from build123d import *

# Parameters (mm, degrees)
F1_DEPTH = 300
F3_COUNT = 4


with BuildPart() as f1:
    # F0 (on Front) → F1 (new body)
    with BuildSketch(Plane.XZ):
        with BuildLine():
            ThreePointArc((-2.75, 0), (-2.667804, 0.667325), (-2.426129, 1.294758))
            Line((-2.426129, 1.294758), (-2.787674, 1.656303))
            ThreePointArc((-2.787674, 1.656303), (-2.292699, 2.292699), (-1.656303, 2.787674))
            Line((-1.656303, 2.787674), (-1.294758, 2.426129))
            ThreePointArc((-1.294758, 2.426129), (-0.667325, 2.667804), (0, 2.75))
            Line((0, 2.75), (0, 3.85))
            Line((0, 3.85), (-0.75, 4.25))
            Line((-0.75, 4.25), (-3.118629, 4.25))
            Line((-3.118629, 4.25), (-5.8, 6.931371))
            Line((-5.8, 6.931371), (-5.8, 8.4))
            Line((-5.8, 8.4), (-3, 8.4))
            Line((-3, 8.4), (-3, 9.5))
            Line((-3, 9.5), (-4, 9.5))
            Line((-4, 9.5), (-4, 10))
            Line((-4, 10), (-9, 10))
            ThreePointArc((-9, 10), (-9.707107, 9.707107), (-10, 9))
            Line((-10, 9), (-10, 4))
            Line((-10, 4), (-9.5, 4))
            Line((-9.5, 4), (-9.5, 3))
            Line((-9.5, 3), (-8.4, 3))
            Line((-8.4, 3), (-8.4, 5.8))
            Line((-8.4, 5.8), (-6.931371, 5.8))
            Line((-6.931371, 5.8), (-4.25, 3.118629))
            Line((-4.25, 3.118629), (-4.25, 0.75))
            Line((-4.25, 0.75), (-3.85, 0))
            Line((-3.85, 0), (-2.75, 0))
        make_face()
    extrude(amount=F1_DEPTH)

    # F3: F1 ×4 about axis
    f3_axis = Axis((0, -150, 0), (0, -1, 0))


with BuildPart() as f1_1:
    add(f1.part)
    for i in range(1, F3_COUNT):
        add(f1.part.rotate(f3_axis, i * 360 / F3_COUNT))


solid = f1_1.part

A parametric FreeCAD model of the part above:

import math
import FreeCAD as App
import Part
import Sketcher
from FreeCAD import Vector
Q = App.Units.Quantity

doc = App.newDocument("Part")
body = doc.addObject("PartDesign::Body", "Body")

sketch1 = body.newObject("Sketcher::SketchObject", "Sketch")
sketch1.AttachmentSupport = (doc.getObject("XZ_Plane"), [""])
sketch1.MapMode = "FlatFace"
sketch1.addGeometry(Part.ArcOfCircle(Part.Circle(Vector(-0.000004, 0.000001, 0), Vector(0, 0, 1), 2.749996), math.radians(151.912371), math.radians(180.000024)), False)
sketch1.addGeometry(Part.LineSegment(Vector(-2.426129, 1.294758, 0), Vector(-2.787674, 1.656303, 0)), False)
sketch1.addGeometry(Part.ArcOfCircle(Part.Circle(Vector(0.005404, -0.005404, 0), Vector(0, 0, 1), 3.250009), math.radians(120.750005), math.radians(149.249995)), False)
sketch1.addGeometry(Part.LineSegment(Vector(-1.656303, 2.787674, 0), Vector(-1.294758, 2.426129, 0)), False)
sketch1.addGeometry(Part.ArcOfCircle(Part.Circle(Vector(-0.000001, 0.000004, 0), Vector(0, 0, 1), 2.749996), math.radians(89.999976), math.radians(118.087629)), False)
sketch1.addGeometry(Part.LineSegment(Vector(0, 2.75, 0), Vector(0, 3.85, 0)), False)
sketch1.addGeometry(Part.LineSegment(Vector(0, 3.85, 0), Vector(-0.75, 4.25, 0)), False)
sketch1.addGeometry(Part.LineSegment(Vector(-0.75, 4.25, 0), Vector(-3.118629, 4.25, 0)), False)
sketch1.addGeometry(Part.LineSegment(Vector(-3.118629, 4.25, 0), Vector(-5.8, 6.931371, 0)), False)
sketch1.addGeometry(Part.LineSegment(Vector(-5.8, 6.931371, 0), Vector(-5.8, 8.4, 0)), False)
sketch1.addGeometry(Part.LineSegment(Vector(-5.8, 8.4, 0), Vector(-3, 8.4, 0)), False)
sketch1.addGeometry(Part.LineSegment(Vector(-3, 8.4, 0), Vector(-3, 9.5, 0)), False)
sketch1.addGeometry(Part.LineSegment(Vector(-3, 9.5, 0), Vector(-4, 9.5, 0)), False)
sketch1.addGeometry(Part.LineSegment(Vector(-4, 9.5, 0), Vector(-4, 10, 0)), False)
sketch1.addGeometry(Part.LineSegment(Vector(-4, 10, 0), Vector(-9, 10, 0)), False)
sketch1.addGeometry(Part.ArcOfCircle(Part.Circle(Vector(-9.000001, 9.000001, 0), Vector(0, 0, 1), 0.999999), math.radians(89.999957), math.radians(180.000043)), False)
sketch1.addGeometry(Part.LineSegment(Vector(-10, 9, 0), Vector(-10, 4, 0)), False)
sketch1.addGeometry(Part.LineSegment(Vector(-10, 4, 0), Vector(-9.5, 4, 0)), False)
sketch1.addGeometry(Part.LineSegment(Vector(-9.5, 4, 0), Vector(-9.5, 3, 0)), False)
sketch1.addGeometry(Part.LineSegment(Vector(-9.5, 3, 0), Vector(-8.4, 3, 0)), False)
sketch1.addGeometry(Part.LineSegment(Vector(-8.4, 3, 0), Vector(-8.4, 5.8, 0)), False)
sketch1.addGeometry(Part.LineSegment(Vector(-8.4, 5.8, 0), Vector(-6.931371, 5.8, 0)), False)
sketch1.addGeometry(Part.LineSegment(Vector(-6.931371, 5.8, 0), Vector(-4.25, 3.118629, 0)), False)
sketch1.addGeometry(Part.LineSegment(Vector(-4.25, 3.118629, 0), Vector(-4.25, 0.75, 0)), False)
sketch1.addGeometry(Part.LineSegment(Vector(-4.25, 0.75, 0), Vector(-3.85, 0, 0)), False)
sketch1.addGeometry(Part.LineSegment(Vector(-3.85, 0, 0), Vector(-2.75, 0, 0)), False)
sketch1.addConstraint(Sketcher.Constraint("Coincident", 0, 1, 1, 1))
sketch1.addConstraint(Sketcher.Constraint("Coincident", 1, 2, 2, 2))
sketch1.addConstraint(Sketcher.Constraint("Coincident", 2, 1, 3, 1))
sketch1.addConstraint(Sketcher.Constraint("Coincident", 3, 2, 4, 2))
sketch1.addConstraint(Sketcher.Constraint("Coincident", 4, 1, 5, 1))
sketch1.addConstraint(Sketcher.Constraint("Coincident", 5, 2, 6, 1))
sketch1.addConstraint(Sketcher.Constraint("Coincident", 6, 2, 7, 1))
sketch1.addConstraint(Sketcher.Constraint("Coincident", 7, 2, 8, 1))
sketch1.addConstraint(Sketcher.Constraint("Coincident", 8, 2, 9, 1))
sketch1.addConstraint(Sketcher.Constraint("Coincident", 9, 2, 10, 1))
sketch1.addConstraint(Sketcher.Constraint("Coincident", 10, 2, 11, 1))
sketch1.addConstraint(Sketcher.Constraint("Coincident", 11, 2, 12, 1))
sketch1.addConstraint(Sketcher.Constraint("Coincident", 12, 2, 13, 1))
sketch1.addConstraint(Sketcher.Constraint("Coincident", 13, 2, 14, 1))
sketch1.addConstraint(Sketcher.Constraint("Tangent", 14, 2, 15, 1))
sketch1.addConstraint(Sketcher.Constraint("Tangent", 15, 2, 16, 1))
sketch1.addConstraint(Sketcher.Constraint("Coincident", 16, 2, 17, 1))
sketch1.addConstraint(Sketcher.Constraint("Coincident", 17, 2, 18, 1))
sketch1.addConstraint(Sketcher.Constraint("Coincident", 18, 2, 19, 1))
sketch1.addConstraint(Sketcher.Constraint("Coincident", 19, 2, 20, 1))
sketch1.addConstraint(Sketcher.Constraint("Coincident", 20, 2, 21, 1))
sketch1.addConstraint(Sketcher.Constraint("Coincident", 21, 2, 22, 1))
sketch1.addConstraint(Sketcher.Constraint("Coincident", 22, 2, 23, 1))
sketch1.addConstraint(Sketcher.Constraint("Coincident", 23, 2, 24, 1))
sketch1.addConstraint(Sketcher.Constraint("Coincident", 24, 2, 25, 1))
sketch1.addConstraint(Sketcher.Constraint("Coincident", 25, 2, 0, 2))
sketch1.addConstraint(Sketcher.Constraint("Vertical", 5))
sketch1.addConstraint(Sketcher.Constraint("Horizontal", 7))
sketch1.addConstraint(Sketcher.Constraint("Vertical", 9))
sketch1.addConstraint(Sketcher.Constraint("Horizontal", 10))
sketch1.addConstraint(Sketcher.Constraint("Vertical", 11))
sketch1.addConstraint(Sketcher.Constraint("Horizontal", 12))
sketch1.addConstraint(Sketcher.Constraint("Vertical", 13))
sketch1.addConstraint(Sketcher.Constraint("Horizontal", 14))
sketch1.addConstraint(Sketcher.Constraint("Vertical", 16))
sketch1.addConstraint(Sketcher.Constraint("Horizontal", 17))
sketch1.addConstraint(Sketcher.Constraint("Vertical", 18))
sketch1.addConstraint(Sketcher.Constraint("Horizontal", 19))
sketch1.addConstraint(Sketcher.Constraint("Vertical", 20))
sketch1.addConstraint(Sketcher.Constraint("Horizontal", 21))
sketch1.addConstraint(Sketcher.Constraint("Vertical", 23))
sketch1.addConstraint(Sketcher.Constraint("Horizontal", 25))
sketch1.addConstraint(Sketcher.Constraint("Coincident", 0, 3, -1, 1))
sketch1.addConstraint(Sketcher.Constraint("Coincident", 4, 3, -1, 1))
sketch1.addConstraint(Sketcher.Constraint("Equal", 0, 4))
sketch1.addConstraint(Sketcher.Constraint("PointOnObject", 4, 1, -2))
sketch1.addConstraint(Sketcher.Constraint("PointOnObject", 24, 2, -1))
sketch1.addConstraint(Sketcher.Constraint("Parallel", 1, 3))
sketch1.addConstraint(Sketcher.Constraint("Parallel", 3, 8))
sketch1.addConstraint(Sketcher.Constraint("Parallel", 8, 22))
sketch1.addConstraint(Sketcher.Constraint("Equal", 19, 25))
sketch1.addConstraint(Sketcher.Constraint("Equal", 25, 5))
sketch1.addConstraint(Sketcher.Constraint("Equal", 21, 9))
sketch1.addConstraint(Sketcher.Constraint("Equal", 5, 11))
sketch1.addConstraint(Sketcher.Constraint("Equal", 17, 13))
sketch1.addConstraint(Sketcher.Constraint("Equal", 14, 16))
sketch1.addConstraint(Sketcher.Constraint("Equal", 12, 18))
sketch1.addConstraint(Sketcher.Constraint("Equal", 10, 20))
sketch1.addConstraint(Sketcher.Constraint("Equal", 7, 23))
sketch1.addConstraint(Sketcher.Constraint("Equal", 1, 3))
sketch1.addConstraint(Sketcher.Constraint("Equal", 8, 22))
sketch1.addConstraint(Sketcher.Constraint("Equal", 6, 24))
sketch1.addConstraint(Sketcher.Constraint("Radius", 15, 0.999999))
sketch1.addConstraint(Sketcher.Constraint("DistanceX", 12, 2, 12, 1, 1.0))
sketch1.addConstraint(Sketcher.Constraint("DistanceX", 14, 2, 14, 1, 5.0))
sketch1.addConstraint(Sketcher.Constraint("Angle", 1, Q("135 deg")))
sketch1.addConstraint(Sketcher.Constraint("DistanceX", 10, 1, 10, 2, 2.8))
sketch1.addConstraint(Sketcher.Constraint("DistanceX", 17, 1, 17, 2, 0.5))
sketch1.addConstraint(Sketcher.Constraint("DistanceX", 19, 1, 19, 2, 1.1))
sketch1.addConstraint(Sketcher.Constraint("DistanceX", 15, 3, -1, 1, 9.000001))
sketch1.addConstraint(Sketcher.Constraint("DistanceY", 5, 2, 6, 2, 0.4))
sketch1.addConstraint(Sketcher.Constraint("Distance", 6, 0.85))
sketch1.addConstraint(Sketcher.Constraint("DistanceY", -1, 1, 4, 1, 2.75))
sketch1.addConstraint(Sketcher.Constraint("Radius", 2, 3.250009))
sketch1.addConstraint(Sketcher.Constraint("Distance", 1, 0.511302))
sketch1.addConstraint(Sketcher.Constraint("DistanceX", 7, 2, 7, 1, 2.368629))
sketch1.addConstraint(Sketcher.Constraint("DistanceY", 0, 3, 1, 2, 1.656302))
sketch1.addConstraint(Sketcher.Constraint("DistanceX", 2, 1, 4, 3, 1.656302))
pad1 = body.newObject("PartDesign::Pad", "Pad")
pad1.Profile = sketch1
pad1.Length = 300
body2 = doc.addObject("PartDesign::Body", "Body001")
doc.recompute()

body2.BaseFeature = body
doc.recompute()

body3 = doc.addObject("PartDesign::Body", "Body002")
body3.BaseFeature = body
body3.Placement = App.Placement(Vector(0, 0, 0), App.Rotation(Vector(0, -1, 0), 90))
boolean = body2.newObject("PartDesign::Boolean", "Boolean")
boolean.Type = "Fuse"
boolean.addObjects([body3])
doc.recompute()

body4 = doc.addObject("PartDesign::Body", "Body003")
body4.BaseFeature = body
body4.Placement = App.Placement(Vector(0, 0, 0), App.Rotation(Vector(0, -1, 0), 180))
boolean2 = body2.newObject("PartDesign::Boolean", "Boolean001")
boolean2.Type = "Fuse"
boolean2.addObjects([body4])
doc.recompute()

body.Placement = App.Placement(Vector(0, 0, 0), App.Rotation(Vector(0, -1, 0), 270))
boolean3 = body2.newObject("PartDesign::Boolean", "Boolean002")
boolean3.Type = "Fuse"
boolean3.addObjects([body])

doc.recompute()
